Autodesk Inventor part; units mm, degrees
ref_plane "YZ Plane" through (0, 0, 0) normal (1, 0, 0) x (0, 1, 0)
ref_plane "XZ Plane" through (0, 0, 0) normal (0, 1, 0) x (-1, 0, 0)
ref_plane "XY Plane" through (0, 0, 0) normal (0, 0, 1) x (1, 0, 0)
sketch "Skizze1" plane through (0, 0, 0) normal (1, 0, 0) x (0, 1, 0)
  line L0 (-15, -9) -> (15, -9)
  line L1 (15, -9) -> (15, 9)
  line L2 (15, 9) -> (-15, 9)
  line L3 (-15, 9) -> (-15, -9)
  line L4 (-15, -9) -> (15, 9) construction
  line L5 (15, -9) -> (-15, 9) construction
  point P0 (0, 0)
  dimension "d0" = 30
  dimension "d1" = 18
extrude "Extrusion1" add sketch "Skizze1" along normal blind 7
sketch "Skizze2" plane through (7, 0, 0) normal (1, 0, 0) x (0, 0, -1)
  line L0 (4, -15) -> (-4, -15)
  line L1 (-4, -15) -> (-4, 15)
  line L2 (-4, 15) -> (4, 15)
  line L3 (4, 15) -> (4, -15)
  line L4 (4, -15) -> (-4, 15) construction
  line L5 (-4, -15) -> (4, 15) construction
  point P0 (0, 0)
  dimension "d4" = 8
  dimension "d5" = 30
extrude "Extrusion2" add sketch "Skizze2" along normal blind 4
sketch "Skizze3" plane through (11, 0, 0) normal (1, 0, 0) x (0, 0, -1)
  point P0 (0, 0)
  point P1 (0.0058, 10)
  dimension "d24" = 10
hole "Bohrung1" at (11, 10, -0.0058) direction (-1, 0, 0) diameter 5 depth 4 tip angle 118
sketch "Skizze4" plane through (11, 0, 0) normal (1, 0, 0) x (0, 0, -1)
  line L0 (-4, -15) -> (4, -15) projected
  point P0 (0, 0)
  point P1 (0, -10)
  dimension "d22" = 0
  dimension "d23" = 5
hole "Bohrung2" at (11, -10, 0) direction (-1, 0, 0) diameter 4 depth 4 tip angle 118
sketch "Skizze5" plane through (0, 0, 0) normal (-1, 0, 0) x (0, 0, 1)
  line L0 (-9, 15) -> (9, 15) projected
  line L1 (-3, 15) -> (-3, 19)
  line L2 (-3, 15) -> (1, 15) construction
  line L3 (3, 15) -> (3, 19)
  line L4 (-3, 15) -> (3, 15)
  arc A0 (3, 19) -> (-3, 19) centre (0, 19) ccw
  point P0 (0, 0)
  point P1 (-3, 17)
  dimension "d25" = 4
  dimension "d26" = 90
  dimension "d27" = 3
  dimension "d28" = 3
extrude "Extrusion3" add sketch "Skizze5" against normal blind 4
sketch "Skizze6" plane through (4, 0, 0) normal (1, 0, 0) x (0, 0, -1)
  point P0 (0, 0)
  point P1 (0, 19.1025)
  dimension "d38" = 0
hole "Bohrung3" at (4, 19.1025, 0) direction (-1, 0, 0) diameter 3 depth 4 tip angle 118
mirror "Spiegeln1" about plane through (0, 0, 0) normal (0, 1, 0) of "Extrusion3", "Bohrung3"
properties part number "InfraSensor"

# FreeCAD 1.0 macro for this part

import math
import FreeCAD as App
import Part
import Sketcher

V = App.Vector

doc = App.newDocument("Part")
body = doc.addObject("PartDesign::Body", "Body")

sketch1 = body.newObject("Sketcher::SketchObject", "Sketch")
sketch1.AttachmentSupport = (doc.getObject("YZ_Plane"), [""])
sketch1.MapMode = "FlatFace"
sketch1.addGeometry(Part.LineSegment(V(-15, 9, 0), V(-15, -9, 0)), False)
sketch1.addGeometry(Part.LineSegment(V(-15, -9, 0), V(15, -9, 0)), False)
sketch1.addGeometry(Part.LineSegment(V(15, -9, 0), V(15, 9, 0)), False)
sketch1.addGeometry(Part.LineSegment(V(15, 9, 0), V(-15, 9, 0)), False)
sketch1.addConstraint(Sketcher.Constraint("Coincident", 0, 2, 1, 1))
sketch1.addConstraint(Sketcher.Constraint("Coincident", 1, 2, 2, 1))
sketch1.addConstraint(Sketcher.Constraint("Coincident", 2, 2, 3, 1))
sketch1.addConstraint(Sketcher.Constraint("Coincident", 3, 2, 0, 1))
sketch1.addConstraint(Sketcher.Constraint("Vertical", 0))
sketch1.addConstraint(Sketcher.Constraint("Horizontal", 1))
sketch1.addConstraint(Sketcher.Constraint("Vertical", 2))
sketch1.addConstraint(Sketcher.Constraint("Horizontal", 3))
sketch1.addConstraint(Sketcher.Constraint("Symmetric", 0, 2, 2, 2, -1, 1))
sketch1.addConstraint(Sketcher.Constraint("DistanceX", 1, 1, 1, 2, 30.0))
sketch1.addConstraint(Sketcher.Constraint("DistanceY", 0, 2, 0, 1, 18.0))
pad1 = body.newObject("PartDesign::Pad", "Pad")
pad1.Profile = sketch1
pad1.Length = 7

sketch2 = body.newObject("Sketcher::SketchObject", "Sketch001")
sketch2.AttachmentSupport = (doc.getObject("YZ_Plane"), [""])
sketch2.MapMode = "FlatFace"
sketch2.AttachmentOffset = App.Placement(V(0, 0, 7), App.Rotation())
sketch2.addGeometry(Part.LineSegment(V(-15, 4, 0), V(-15, -4, 0)), False)
sketch2.addGeometry(Part.LineSegment(V(-15, -4, 0), V(15, -4, 0)), False)
sketch2.addGeometry(Part.LineSegment(V(15, -4, 0), V(15, 4, 0)), False)
sketch2.addGeometry(Part.LineSegment(V(15, 4, 0), V(-15, 4, 0)), False)
sketch2.addConstraint(Sketcher.Constraint("Coincident", 0, 2, 1, 1))
sketch2.addConstraint(Sketcher.Constraint("Coincident", 1, 2, 2, 1))
sketch2.addConstraint(Sketcher.Constraint("Coincident", 2, 2, 3, 1))
sketch2.addConstraint(Sketcher.Constraint("Coincident", 3, 2, 0, 1))
sketch2.addConstraint(Sketcher.Constraint("Vertical", 0))
sketch2.addConstraint(Sketcher.Constraint("Horizontal", 1))
sketch2.addConstraint(Sketcher.Constraint("Vertical", 2))
sketch2.addConstraint(Sketcher.Constraint("Horizontal", 3))
sketch2.addConstraint(Sketcher.Constraint("Symmetric", 0, 2, 2, 2, -1, 1))
sketch2.addConstraint(Sketcher.Constraint("DistanceX", 1, 1, 1, 2, 30.0))
sketch2.addConstraint(Sketcher.Constraint("DistanceY", 0, 2, 0, 1, 8.0))
pad2 = body.newObject("PartDesign::Pad", "Pad001")
pad2.Profile = sketch2
pad2.Length = 4

sketch3 = body.newObject("Sketcher::SketchObject", "Sketch002")
sketch3.AttachmentSupport = (doc.getObject("YZ_Plane"), [""])
sketch3.MapMode = "FlatFace"
sketch3.AttachmentOffset = App.Placement(V(0, 0, 11), App.Rotation())
sketch3.addGeometry(Part.Circle(V(10, 0, 0), V(0, 0, 1), 2.5), False)
sketch3.addConstraint(Sketcher.Constraint("Diameter", 0, 5.0))
sketch3.addConstraint(Sketcher.Constraint("DistanceX", -1, 1, 0, 3, 10.0))
sketch3.addConstraint(Sketcher.Constraint("DistanceY", 0, 3, -1, 1, 0.0058))
doc.recompute()
hole = body.newObject("PartDesign::Hole", "Hole")
hole.Profile = sketch3
hole.ThreadType = "None"
hole.Diameter = 5
hole.DepthType = "Dimension"
hole.Depth = 4
hole.DrillPoint = "Angled"
hole.DrillPointAngle = 118

sketch4 = body.newObject("Sketcher::SketchObject", "Sketch003")
sketch4.AttachmentSupport = (doc.getObject("YZ_Plane"), [""])
sketch4.MapMode = "FlatFace"
sketch4.AttachmentOffset = App.Placement(V(0, 0, 11), App.Rotation())
sketch4.addGeometry(Part.Circle(V(-10, 0, 0), V(0, 0, 1), 2), False)
sketch4.addConstraint(Sketcher.Constraint("PointOnObject", 0, 3, -1))
sketch4.addConstraint(Sketcher.Constraint("Diameter", 0, 4.0))
sketch4.addConstraint(Sketcher.Constraint("DistanceX", 0, 3, -1, 1, 10.0))
doc.recompute()
hole2 = body.newObject("PartDesign::Hole", "Hole001")
hole2.Profile = sketch4
hole2.ThreadType = "None"
hole2.Diameter = 4
hole2.DepthType = "Dimension"
hole2.Depth = 4
hole2.DrillPoint = "Angled"
hole2.DrillPointAngle = 118

sketch5 = body.newObject("Sketcher::SketchObject", "Sketch004")
sketch5.AttachmentSupport = (doc.getObject("YZ_Plane"), [""])
sketch5.MapMode = "FlatFace"
sketch5.addGeometry(Part.LineSegment(V(19, -3, 0), V(15, -3, 0)), False)
sketch5.addGeometry(Part.LineSegment(V(15, -3, 0), V(15, 3, 0)), False)
sketch5.addGeometry(Part.LineSegment(V(15, 3, 0), V(19, 3, 0)), False)
sketch5.addGeometry(Part.ArcOfCircle(Part.Circle(V(19, 0, 0), V(0, 0, 1), 3), math.radians(-90), math.radians(90)), False)
sketch5.addConstraint(Sketcher.Constraint("Coincident", 0, 2, 1, 1))
sketch5.addConstraint(Sketcher.Constraint("Coincident", 1, 2, 2, 1))
sketch5.addConstraint(Sketcher.Constraint("Tangent", 2, 2, 3, 2))
sketch5.addConstraint(Sketcher.Constraint("Tangent", 3, 1, 0, 1))
sketch5.addConstraint(Sketcher.Constraint("Horizontal", 0))
sketch5.addConstraint(Sketcher.Constraint("Vertical", 1))
sketch5.addConstraint(Sketcher.Constraint("Horizontal", 2))
sketch5.addConstraint(Sketcher.Constraint("PointOnObject", 3, 3, -1))
sketch5.addConstraint(Sketcher.Constraint("Radius", 3, 3.0))
sketch5.addConstraint(Sketcher.Constraint("DistanceX", 0, 2, 0, 1, 4.0))
sketch5.addConstraint(Sketcher.Constraint("DistanceX", -1, 1, 3, 3, 19.0))
pad3 = body.newObject("PartDesign::Pad", "Pad002")
pad3.Profile = sketch5
pad3.Length = 4

sketch6 = body.newObject("Sketcher::SketchObject", "Sketch005")
sketch6.AttachmentSupport = (doc.getObject("YZ_Plane"), [""])
sketch6.MapMode = "FlatFace"
sketch6.AttachmentOffset = App.Placement(V(0, 0, 4), App.Rotation())
sketch6.addGeometry(Part.Circle(V(19.1, 0, 0), V(0, 0, 1), 1.5), False)
sketch6.addConstraint(Sketcher.Constraint("PointOnObject", 0, 3, -1))
sketch6.addConstraint(Sketcher.Constraint("Diameter", 0, 3.0))
sketch6.addConstraint(Sketcher.Constraint("DistanceX", -1, 1, 0, 3, 19.1025))
doc.recompute()
hole3 = body.newObject("PartDesign::Hole", "Hole002")
hole3.Profile = sketch6
hole3.ThreadType = "None"
hole3.Diameter = 3
hole3.DepthType = "Dimension"
hole3.Depth = 4
hole3.DrillPoint = "Angled"
hole3.DrillPointAngle = 118
doc.recompute()

mirrored = body.newObject("PartDesign::Mirrored", "Mirrored")
mirrored.Originals = [pad3, hole3]
mirrored.MirrorPlane = (doc.getObject("XZ_Plane"), [""])
body.Tip = mirrored

doc.recompute()
